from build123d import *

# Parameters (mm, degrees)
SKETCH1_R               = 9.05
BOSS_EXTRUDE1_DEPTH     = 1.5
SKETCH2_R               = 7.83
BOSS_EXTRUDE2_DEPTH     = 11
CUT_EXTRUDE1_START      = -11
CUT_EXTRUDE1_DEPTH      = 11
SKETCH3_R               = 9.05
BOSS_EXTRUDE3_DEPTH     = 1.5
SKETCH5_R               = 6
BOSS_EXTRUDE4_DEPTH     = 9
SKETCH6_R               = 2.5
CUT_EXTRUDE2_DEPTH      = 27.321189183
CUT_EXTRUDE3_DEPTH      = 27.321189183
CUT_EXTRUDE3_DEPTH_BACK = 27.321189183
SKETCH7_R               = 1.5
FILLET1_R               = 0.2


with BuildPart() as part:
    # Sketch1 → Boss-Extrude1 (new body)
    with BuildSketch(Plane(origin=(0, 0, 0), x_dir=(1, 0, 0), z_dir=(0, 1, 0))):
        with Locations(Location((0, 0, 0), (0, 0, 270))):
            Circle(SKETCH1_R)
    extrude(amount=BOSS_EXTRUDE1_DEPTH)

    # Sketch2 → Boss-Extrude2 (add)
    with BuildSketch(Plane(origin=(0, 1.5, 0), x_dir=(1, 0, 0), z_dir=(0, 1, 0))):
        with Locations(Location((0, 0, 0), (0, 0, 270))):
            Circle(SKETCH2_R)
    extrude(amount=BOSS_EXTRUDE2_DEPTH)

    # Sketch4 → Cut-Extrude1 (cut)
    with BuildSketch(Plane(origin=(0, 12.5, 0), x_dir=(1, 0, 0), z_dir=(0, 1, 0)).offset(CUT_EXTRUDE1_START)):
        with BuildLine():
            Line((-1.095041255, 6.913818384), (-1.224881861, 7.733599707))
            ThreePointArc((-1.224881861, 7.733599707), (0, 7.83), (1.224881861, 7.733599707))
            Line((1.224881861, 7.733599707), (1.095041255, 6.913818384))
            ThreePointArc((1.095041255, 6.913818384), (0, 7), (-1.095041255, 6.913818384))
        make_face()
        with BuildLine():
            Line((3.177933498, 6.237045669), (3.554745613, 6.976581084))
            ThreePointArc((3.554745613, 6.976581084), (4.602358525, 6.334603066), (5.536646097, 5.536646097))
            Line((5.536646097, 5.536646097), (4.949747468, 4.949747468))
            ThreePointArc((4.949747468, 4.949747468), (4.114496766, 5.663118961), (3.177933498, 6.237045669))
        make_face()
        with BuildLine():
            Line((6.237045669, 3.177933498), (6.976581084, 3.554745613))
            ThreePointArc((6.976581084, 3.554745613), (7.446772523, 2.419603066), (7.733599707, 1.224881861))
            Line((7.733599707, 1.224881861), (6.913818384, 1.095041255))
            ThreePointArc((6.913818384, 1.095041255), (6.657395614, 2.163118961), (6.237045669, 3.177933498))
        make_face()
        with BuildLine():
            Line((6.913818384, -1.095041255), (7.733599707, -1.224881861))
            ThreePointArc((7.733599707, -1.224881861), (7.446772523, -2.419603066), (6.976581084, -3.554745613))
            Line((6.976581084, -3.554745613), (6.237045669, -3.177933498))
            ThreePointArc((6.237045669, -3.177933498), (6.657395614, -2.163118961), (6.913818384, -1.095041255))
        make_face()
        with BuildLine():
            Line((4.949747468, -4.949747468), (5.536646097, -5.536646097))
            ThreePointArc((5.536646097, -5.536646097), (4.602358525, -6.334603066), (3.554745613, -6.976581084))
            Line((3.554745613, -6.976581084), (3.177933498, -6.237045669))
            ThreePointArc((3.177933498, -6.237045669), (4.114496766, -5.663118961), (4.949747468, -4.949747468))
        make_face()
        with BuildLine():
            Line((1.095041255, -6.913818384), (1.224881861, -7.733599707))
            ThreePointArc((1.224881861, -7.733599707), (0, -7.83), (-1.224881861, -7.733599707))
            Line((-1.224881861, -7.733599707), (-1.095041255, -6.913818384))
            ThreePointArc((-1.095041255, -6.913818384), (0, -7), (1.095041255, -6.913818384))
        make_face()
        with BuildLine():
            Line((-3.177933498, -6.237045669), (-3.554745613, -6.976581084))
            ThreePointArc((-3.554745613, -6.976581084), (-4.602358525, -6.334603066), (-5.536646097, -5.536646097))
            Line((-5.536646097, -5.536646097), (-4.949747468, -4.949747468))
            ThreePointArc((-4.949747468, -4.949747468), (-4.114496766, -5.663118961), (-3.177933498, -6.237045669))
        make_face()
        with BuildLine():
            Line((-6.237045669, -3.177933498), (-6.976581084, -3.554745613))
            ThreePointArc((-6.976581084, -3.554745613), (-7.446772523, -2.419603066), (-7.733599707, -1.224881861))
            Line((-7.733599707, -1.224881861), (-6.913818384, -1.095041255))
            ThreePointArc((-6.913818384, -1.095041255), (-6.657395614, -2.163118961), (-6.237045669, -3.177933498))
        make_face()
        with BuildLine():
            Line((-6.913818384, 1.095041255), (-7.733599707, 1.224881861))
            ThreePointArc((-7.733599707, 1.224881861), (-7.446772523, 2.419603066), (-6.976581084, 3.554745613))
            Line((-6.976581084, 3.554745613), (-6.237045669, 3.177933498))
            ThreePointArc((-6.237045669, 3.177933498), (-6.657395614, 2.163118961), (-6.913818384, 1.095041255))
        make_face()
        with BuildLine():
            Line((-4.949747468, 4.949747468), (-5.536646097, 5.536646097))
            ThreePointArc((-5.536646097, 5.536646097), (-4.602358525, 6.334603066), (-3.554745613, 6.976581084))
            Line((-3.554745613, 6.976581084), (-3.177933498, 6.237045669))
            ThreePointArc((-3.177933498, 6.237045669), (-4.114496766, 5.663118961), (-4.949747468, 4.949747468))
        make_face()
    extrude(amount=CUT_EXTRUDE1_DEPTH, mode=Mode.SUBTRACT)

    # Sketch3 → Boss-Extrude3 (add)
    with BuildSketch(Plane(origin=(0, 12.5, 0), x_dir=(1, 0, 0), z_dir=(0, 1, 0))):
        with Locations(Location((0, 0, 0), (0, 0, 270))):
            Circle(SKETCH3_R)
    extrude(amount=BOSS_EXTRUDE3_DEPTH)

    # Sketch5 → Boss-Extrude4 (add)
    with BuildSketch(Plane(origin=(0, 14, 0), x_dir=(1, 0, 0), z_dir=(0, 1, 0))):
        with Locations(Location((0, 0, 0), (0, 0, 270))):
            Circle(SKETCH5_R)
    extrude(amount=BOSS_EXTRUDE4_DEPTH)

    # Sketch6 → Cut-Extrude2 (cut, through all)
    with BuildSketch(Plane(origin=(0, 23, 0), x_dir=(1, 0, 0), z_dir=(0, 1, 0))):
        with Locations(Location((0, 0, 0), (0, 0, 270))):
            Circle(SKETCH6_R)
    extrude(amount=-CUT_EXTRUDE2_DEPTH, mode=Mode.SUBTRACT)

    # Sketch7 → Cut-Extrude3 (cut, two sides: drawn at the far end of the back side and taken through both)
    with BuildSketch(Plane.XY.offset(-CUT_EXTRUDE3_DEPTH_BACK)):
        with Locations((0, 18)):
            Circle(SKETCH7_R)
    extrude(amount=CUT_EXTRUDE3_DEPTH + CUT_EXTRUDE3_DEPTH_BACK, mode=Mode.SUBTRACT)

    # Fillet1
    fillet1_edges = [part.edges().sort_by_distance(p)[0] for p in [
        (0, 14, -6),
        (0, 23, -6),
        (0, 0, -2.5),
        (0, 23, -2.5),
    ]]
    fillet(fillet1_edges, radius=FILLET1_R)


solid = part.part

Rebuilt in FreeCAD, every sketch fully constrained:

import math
import FreeCAD as App
import Part
import Sketcher
Q = App.Units.Quantity


def edges_at(feature, points):
    """Names of the edges that pass closest to the given points."""
    edges = feature.Shape.Edges
    near = lambda p: min(range(len(edges)), key=lambda i: edges[i].distToShape(Part.Vertex(*p))[0])
    return sorted({f"Edge{near(p) + 1}" for p in points})

doc = App.newDocument("Part")
body = doc.addObject("PartDesign::Body", "Body")

# Sketch on XZ plane
sketch1 = body.newObject("Sketcher::SketchObject", "Sketch")
sketch1.AttachmentSupport = (doc.getObject("XZ_Plane"), [""])
sketch1.MapMode = "FlatFace"
sketch1.addGeometry(Part.Circle(App.Vector(0, 0, 0), App.Vector(0, 0, 1), 9), False)
sketch1.addConstraint([
    Sketcher.Constraint("Coincident", 0, 3, -1, 1),
    Sketcher.Constraint("Diameter", 0, 18.1),
])
pad1 = body.newObject("PartDesign::Pad", "Pad")
pad1.Profile = sketch1
pad1.Length = 1.5
pad1.Reversed = True

# Sketch on XZ plane
sketch2 = body.newObject("Sketcher::SketchObject", "Sketch001")
sketch2.AttachmentSupport = (doc.getObject("XZ_Plane"), [""])
sketch2.MapMode = "FlatFace"
sketch2.AttachmentOffset = App.Placement(App.Vector(0, 0, -1.5), App.Rotation())
sketch2.addGeometry(Part.Circle(App.Vector(0, 0, 0), App.Vector(0, 0, 1), 8), False)
sketch2.addConstraint([
    Sketcher.Constraint("Coincident", 0, 3, -1, 1),
    Sketcher.Constraint("Diameter", 0, 15.66),
])
pad2 = body.newObject("PartDesign::Pad", "Pad001")
pad2.Profile = sketch2
pad2.Length = 11
pad2.Reversed = True

# Sketch on XZ plane
sketch3 = body.newObject("Sketcher::SketchObject", "Sketch002")
sketch3.AttachmentSupport = (doc.getObject("XZ_Plane"), [""])
sketch3.MapMode = "FlatFace"
sketch3.AttachmentOffset = App.Placement(App.Vector(0, 0, -1.5), App.Rotation())
sketch3.addGeometry([
    Part.LineSegment(App.Vector(-1.2, -7.7, 0), App.Vector(-1.1, -6.9, 0)),  # 0
    Part.ArcOfCircle(Part.Circle(App.Vector(0, 0, 0), App.Vector(0, 0, 1), 7), math.radians(-99), math.radians(-81)),  # 1
    Part.LineSegment(App.Vector(1.1, -6.9, 0), App.Vector(1.2, -7.7, 0)),  # 2
    Part.ArcOfCircle(Part.Circle(App.Vector(0, 0, 0), App.Vector(0, 0, 1), 7.8), math.radians(-99), math.radians(-81)),  # 3
    Part.LineSegment(App.Vector(3.6, -7, 0), App.Vector(3.2, -6.2, 0)),  # 4
    Part.ArcOfCircle(Part.Circle(App.Vector(0, 0, 0), App.Vector(0, 0, 1), 7), math.radians(-63), math.radians(-45)),  # 5
    Part.LineSegment(App.Vector(4.9, -4.9, 0), App.Vector(5.5, -5.5, 0)),  # 6
    Part.ArcOfCircle(Part.Circle(App.Vector(0, 0, 0), App.Vector(0, 0, 1), 7.8), math.radians(-63), math.radians(-45)),  # 7
    Part.LineSegment(App.Vector(7, -3.6, 0), App.Vector(6.2, -3.2, 0)),  # 8
    Part.ArcOfCircle(Part.Circle(App.Vector(0, 0, 0), App.Vector(0, 0, 1), 7), math.radians(-27), math.radians(-9)),  # 9
    Part.LineSegment(App.Vector(6.9, -1.1, 0), App.Vector(7.7, -1.2, 0)),  # 10
    Part.ArcOfCircle(Part.Circle(App.Vector(0, 0, 0), App.Vector(0, 0, 1), 7.8), math.radians(-27), math.radians(-9)),  # 11
    Part.LineSegment(App.Vector(7.7, 1.2, 0), App.Vector(6.9, 1.1, 0)),  # 12
    Part.ArcOfCircle(Part.Circle(App.Vector(0, 0, 0), App.Vector(0, 0, 1), 7), math.radians(9), math.radians(27)),  # 13
    Part.LineSegment(App.Vector(6.2, 3.2, 0), App.Vector(7, 3.6, 0)),  # 14
    Part.ArcOfCircle(Part.Circle(App.Vector(0, 0, 0), App.Vector(0, 0, 1), 7.8), math.radians(9), math.radians(27)),  # 15
    Part.LineSegment(App.Vector(5.5, 5.5, 0), App.Vector(4.9, 4.9, 0)),  # 16
    Part.ArcOfCircle(Part.Circle(App.Vector(0, 0, 0), App.Vector(0, 0, 1), 7), math.radians(45), math.radians(63)),  # 17
    Part.LineSegment(App.Vector(3.2, 6.2, 0), App.Vector(3.6, 7, 0)),  # 18
    Part.ArcOfCircle(Part.Circle(App.Vector(0, 0, 0), App.Vector(0, 0, 1), 7.8), math.radians(45), math.radians(63)),  # 19
    Part.LineSegment(App.Vector(1.2, 7.7, 0), App.Vector(1.1, 6.9, 0)),  # 20
    Part.ArcOfCircle(Part.Circle(App.Vector(0, 0, 0), App.Vector(0, 0, 1), 7), math.radians(81), math.radians(99)),  # 21
    Part.LineSegment(App.Vector(-1.1, 6.9, 0), App.Vector(-1.2, 7.7, 0)),  # 22
    Part.ArcOfCircle(Part.Circle(App.Vector(0, 0, 0), App.Vector(0, 0, 1), 7.8), math.radians(81), math.radians(99)),  # 23
    Part.LineSegment(App.Vector(-3.6, 7, 0), App.Vector(-3.2, 6.2, 0)),  # 24
    Part.ArcOfCircle(Part.Circle(App.Vector(0, 0, 0), App.Vector(0, 0, 1), 7), math.radians(117), math.radians(135)),  # 25
    Part.LineSegment(App.Vector(-4.9, 4.9, 0), App.Vector(-5.5, 5.5, 0)),  # 26
    Part.ArcOfCircle(Part.Circle(App.Vector(0, 0, 0), App.Vector(0, 0, 1), 7.8), math.radians(117), math.radians(135)),  # 27
    Part.LineSegment(App.Vector(-7, 3.6, 0), App.Vector(-6.2, 3.2, 0)),  # 28
    Part.ArcOfCircle(Part.Circle(App.Vector(0, 0, 0), App.Vector(0, 0, 1), 7), math.radians(153), math.radians(171)),  # 29
    Part.LineSegment(App.Vector(-6.9, 1.1, 0), App.Vector(-7.7, 1.2, 0)),  # 30
    Part.ArcOfCircle(Part.Circle(App.Vector(0, 0, 0), App.Vector(0, 0, 1), 7.8), math.radians(153), math.radians(171)),  # 31
    Part.LineSegment(App.Vector(-7.7, -1.2, 0), App.Vector(-6.9, -1.1, 0)),  # 32
    Part.ArcOfCircle(Part.Circle(App.Vector(0, 0, 0), App.Vector(0, 0, 1), 7), math.radians(-171), math.radians(-153)),  # 33
    Part.LineSegment(App.Vector(-6.2, -3.2, 0), App.Vector(-7, -3.6, 0)),  # 34
    Part.ArcOfCircle(Part.Circle(App.Vector(0, 0, 0), App.Vector(0, 0, 1), 7.8), math.radians(-171), math.radians(-153)),  # 35
    Part.LineSegment(App.Vector(-5.5, -5.5, 0), App.Vector(-4.9, -4.9, 0)),  # 36
    Part.ArcOfCircle(Part.Circle(App.Vector(0, 0, 0), App.Vector(0, 0, 1), 7), math.radians(-135), math.radians(-117)),  # 37
    Part.LineSegment(App.Vector(-3.2, -6.2, 0), App.Vector(-3.6, -7, 0)),  # 38
    Part.ArcOfCircle(Part.Circle(App.Vector(0, 0, 0), App.Vector(0, 0, 1), 7.8), math.radians(-135), math.radians(-117)),  # 39
], False)
sketch3.addConstraint([
    Sketcher.Constraint("Coincident", 0, 2, 1, 1),
    Sketcher.Constraint("Coincident", 1, 2, 2, 1),
    Sketcher.Constraint("Coincident", 2, 2, 3, 2),
    Sketcher.Constraint("Coincident", 3, 1, 0, 1),
    Sketcher.Constraint("Coincident", 4, 2, 5, 1),
    Sketcher.Constraint("Coincident", 5, 2, 6, 1),
    Sketcher.Constraint("Coincident", 6, 2, 7, 2),
    Sketcher.Constraint("Coincident", 7, 1, 4, 1),
    Sketcher.Constraint("Coincident", 8, 2, 9, 1),
    Sketcher.Constraint("Coincident", 9, 2, 10, 1),
    Sketcher.Constraint("Coincident", 10, 2, 11, 2),
    Sketcher.Constraint("Coincident", 11, 1, 8, 1),
    Sketcher.Constraint("Coincident", 12, 2, 13, 1),
    Sketcher.Constraint("Coincident", 13, 2, 14, 1),
    Sketcher.Constraint("Coincident", 14, 2, 15, 2),
    Sketcher.Constraint("Coincident", 15, 1, 12, 1),
    Sketcher.Constraint("Coincident", 16, 2, 17, 1),
    Sketcher.Constraint("Coincident", 17, 2, 18, 1),
    Sketcher.Constraint("Coincident", 18, 2, 19, 2),
    Sketcher.Constraint("Coincident", 19, 1, 16, 1),
    Sketcher.Constraint("Coincident", 20, 2, 21, 1),
    Sketcher.Constraint("Coincident", 21, 2, 22, 1),
    Sketcher.Constraint("Coincident", 22, 2, 23, 2),
    Sketcher.Constraint("Coincident", 23, 1, 20, 1),
    Sketcher.Constraint("Coincident", 24, 2, 25, 1),
    Sketcher.Constraint("Coincident", 25, 2, 26, 1),
    Sketcher.Constraint("Coincident", 26, 2, 27, 2),
    Sketcher.Constraint("Coincident", 27, 1, 24, 1),
    Sketcher.Constraint("Coincident", 28, 2, 29, 1),
    Sketcher.Constraint("Coincident", 29, 2, 30, 1),
    Sketcher.Constraint("Coincident", 30, 2, 31, 2),
    Sketcher.Constraint("Coincident", 31, 1, 28, 1),
    Sketcher.Constraint("Coincident", 32, 2, 33, 1),
    Sketcher.Constraint("Coincident", 33, 2, 34, 1),
    Sketcher.Constraint("Coincident", 34, 2, 35, 2),
    Sketcher.Constraint("Coincident", 35, 1, 32, 1),
    Sketcher.Constraint("Coincident", 36, 2, 37, 1),
    Sketcher.Constraint("Coincident", 37, 2, 38, 1),
    Sketcher.Constraint("Coincident", 38, 2, 39, 2),
    Sketcher.Constraint("Coincident", 39, 1, 36, 1),
    Sketcher.Constraint("Coincident", 1, 3, -1, 1),
    Sketcher.Constraint("Coincident", 3, 3, -1, 1),
    Sketcher.Constraint("Coincident", 5, 3, -1, 1),
    Sketcher.Constraint("Coincident", 7, 3, -1, 1),
    Sketcher.Constraint("Coincident", 9, 3, -1, 1),
    Sketcher.Constraint("Coincident", 11, 3, -1, 1),
    Sketcher.Constraint("Coincident", 13, 3, -1, 1),
    Sketcher.Constraint("Coincident", 15, 3, -1, 1),
    Sketcher.Constraint("Coincident", 17, 3, -1, 1),
    Sketcher.Constraint("Coincident", 19, 3, -1, 1),
    Sketcher.Constraint("Coincident", 21, 3, -1, 1),
    Sketcher.Constraint("Coincident", 23, 3, -1, 1),
    Sketcher.Constraint("Coincident", 25, 3, -1, 1),
    Sketcher.Constraint("Coincident", 27, 3, -1, 1),
    Sketcher.Constraint("Coincident", 29, 3, -1, 1),
    Sketcher.Constraint("Coincident", 31, 3, -1, 1),
    Sketcher.Constraint("Coincident", 33, 3, -1, 1),
    Sketcher.Constraint("Coincident", 35, 3, -1, 1),
    Sketcher.Constraint("Coincident", 37, 3, -1, 1),
    Sketcher.Constraint("Coincident", 39, 3, -1, 1),
    Sketcher.Constraint("Equal", 1, 5),
    Sketcher.Constraint("Equal", 3, 7),
    Sketcher.Constraint("Equal", 5, 9),
    Sketcher.Constraint("Equal", 7, 11),
    Sketcher.Constraint("Equal", 9, 13),
    Sketcher.Constraint("Equal", 11, 15),
    Sketcher.Constraint("Equal", 13, 17),
    Sketcher.Constraint("Equal", 15, 19),
    Sketcher.Constraint("Equal", 17, 21),
    Sketcher.Constraint("Equal", 19, 23),
    Sketcher.Constraint("Equal", 21, 25),
    Sketcher.Constraint("Equal", 23, 27),
    Sketcher.Constraint("Equal", 25, 29),
    Sketcher.Constraint("Equal", 27, 31),
    Sketcher.Constraint("Equal", 29, 33),
    Sketcher.Constraint("Equal", 31, 35),
    Sketcher.Constraint("Equal", 33, 37),
    Sketcher.Constraint("Equal", 35, 39),
    Sketcher.Constraint("Perpendicular", 0, 10),
    Sketcher.Constraint("Perpendicular", 2, 12),
    Sketcher.Constraint("Perpendicular", 4, 14),
    Sketcher.Constraint("Perpendicular", 6, 16),
    Sketcher.Constraint("Perpendicular", 8, 18),
    Sketcher.Constraint("Perpendicular", 10, 20),
    Sketcher.Constraint("Perpendicular", 12, 22),
    Sketcher.Constraint("Perpendicular", 14, 24),
    Sketcher.Constraint("Perpendicular", 16, 26),
    Sketcher.Constraint("Perpendicular", 18, 28),
    Sketcher.Constraint("Perpendicular", 20, 30),
    Sketcher.Constraint("Perpendicular", 22, 32),
    Sketcher.Constraint("Perpendicular", 24, 34),
    Sketcher.Constraint("Perpendicular", 26, 36),
    Sketcher.Constraint("Perpendicular", 28, 38),
    Sketcher.Constraint("Horizontal", 0, 2, 1, 2),
    Sketcher.Constraint("Horizontal", 2, 2, 3, 1),
    Sketcher.Constraint("Horizontal", 20, 2, 21, 2),
    Sketcher.Constraint("Horizontal", 17, 2, 24, 2),
    Sketcher.Constraint("Horizontal", 16, 2, 25, 2),
    Sketcher.Constraint("Horizontal", 19, 1, 26, 2),
    Sketcher.Constraint("Horizontal", 18, 2, 27, 1),
    Sketcher.Constraint("Horizontal", 13, 2, 28, 2),
    Sketcher.Constraint("Horizontal", 12, 2, 29, 2),
    Sketcher.Constraint("Horizontal", 9, 2, 32, 2),
    Sketcher.Constraint("Horizontal", 8, 2, 33, 2),
    Sketcher.Constraint("Horizontal", 5, 2, 36, 2),
    Sketcher.Constraint("Horizontal", 4, 2, 37, 2),
    Sketcher.Constraint("Vertical", 9, 2, 12, 2),
    Sketcher.Constraint("Vertical", 8, 2, 13, 2),
    Sketcher.Constraint("Vertical", 5, 2, 16, 2),
    Sketcher.Constraint("Vertical", 4, 2, 17, 2),
    Sketcher.Constraint("Vertical", 1, 2, 20, 2),
    Sketcher.Constraint("Radius", 1, 7.0),
    Sketcher.Constraint("Angle", 0, Q("81 deg")),
    Sketcher.Constraint("Angle", 4, Q("117 deg")),
    Sketcher.Constraint("Radius", 3, 7.83),
    Sketcher.Constraint("DistanceX", 7, 1, 5, 2, 1.395002),
    Sketcher.Constraint("DistanceY", 5, 2, 11, 1, 1.395002),
    Sketcher.Constraint("DistanceY", 2, 2, -1, 1, 7.7336),
    Sketcher.Constraint("DistanceX", -1, 1, 10, 2, 7.7336),
    Sketcher.Constraint("DistanceY", 4, 2, 5, 2, 1.287298),
])
pocket1 = body.newObject("PartDesign::Pocket", "Pocket")
pocket1.Profile = sketch3
pocket1.Length = 11

# Sketch on XZ plane
sketch4 = body.newObject("Sketcher::SketchObject", "Sketch003")
sketch4.AttachmentSupport = (doc.getObject("XZ_Plane"), [""])
sketch4.MapMode = "FlatFace"
sketch4.AttachmentOffset = App.Placement(App.Vector(0, 0, -12.5), App.Rotation())
sketch4.addGeometry(Part.Circle(App.Vector(0, 0, 0), App.Vector(0, 0, 1), 9), False)
sketch4.addConstraint([
    Sketcher.Constraint("Coincident", 0, 3, -1, 1),
    Sketcher.Constraint("Diameter", 0, 18.1),
])
pad3 = body.newObject("PartDesign::Pad", "Pad002")
pad3.Profile = sketch4
pad3.Length = 1.5
pad3.Reversed = True

# Sketch on XZ plane
sketch5 = body.newObject("Sketcher::SketchObject", "Sketch004")
sketch5.AttachmentSupport = (doc.getObject("XZ_Plane"), [""])
sketch5.MapMode = "FlatFace"
sketch5.AttachmentOffset = App.Placement(App.Vector(0, 0, -14), App.Rotation())
sketch5.addGeometry(Part.Circle(App.Vector(0, 0, 0), App.Vector(0, 0, 1), 6), False)
sketch5.addConstraint([
    Sketcher.Constraint("Coincident", 0, 3, -1, 1),
    Sketcher.Constraint("Diameter", 0, 12.0),
])
pad4 = body.newObject("PartDesign::Pad", "Pad003")
pad4.Profile = sketch5
pad4.Length = 9
pad4.Reversed = True

# Sketch on XZ plane
sketch6 = body.newObject("Sketcher::SketchObject", "Sketch005")
sketch6.AttachmentSupport = (doc.getObject("XZ_Plane"), [""])
sketch6.MapMode = "FlatFace"
sketch6.AttachmentOffset = App.Placement(App.Vector(0, 0, -23), App.Rotation())
sketch6.addGeometry(Part.Circle(App.Vector(0, 0, 0), App.Vector(0, 0, 1), 2.5), False)
sketch6.addConstraint([
    Sketcher.Constraint("Coincident", 0, 3, -1, 1),
    Sketcher.Constraint("Diameter", 0, 5.0),
])
pocket2 = body.newObject("PartDesign::Pocket", "Pocket001")
pocket2.Profile = sketch6
pocket2.Type = "ThroughAll"
pocket2.Reversed = True

# Sketch on XY plane
sketch7 = body.newObject("Sketcher::SketchObject", "Sketch006")
sketch7.AttachmentSupport = (doc.getObject("XY_Plane"), [""])
sketch7.MapMode = "FlatFace"
sketch7.addGeometry(Part.Circle(App.Vector(0, 18, 0), App.Vector(0, 0, 1), 1.5), False)
sketch7.addConstraint([
    Sketcher.Constraint("PointOnObject", 0, 3, -2),
    Sketcher.Constraint("Diameter", 0, 3.0),
    Sketcher.Constraint("DistanceY", -1, 1, 0, 3, 18.0),
])
pocket3 = body.newObject("PartDesign::Pocket", "Pocket002")
pocket3.Profile = sketch7
pocket3.Type = "ThroughAll"
pocket3.Midplane = True
doc.recompute()

fillet = body.newObject("PartDesign::Fillet", "Fillet")
fillet.Base = (pocket3, edges_at(pocket3, [
    (0, 14, -6),
    (0, 23, -6),
    (0, 0, -2.5),
    (0, 23, -2.5),
]))
fillet.Radius = 0.2

doc.recompute()
